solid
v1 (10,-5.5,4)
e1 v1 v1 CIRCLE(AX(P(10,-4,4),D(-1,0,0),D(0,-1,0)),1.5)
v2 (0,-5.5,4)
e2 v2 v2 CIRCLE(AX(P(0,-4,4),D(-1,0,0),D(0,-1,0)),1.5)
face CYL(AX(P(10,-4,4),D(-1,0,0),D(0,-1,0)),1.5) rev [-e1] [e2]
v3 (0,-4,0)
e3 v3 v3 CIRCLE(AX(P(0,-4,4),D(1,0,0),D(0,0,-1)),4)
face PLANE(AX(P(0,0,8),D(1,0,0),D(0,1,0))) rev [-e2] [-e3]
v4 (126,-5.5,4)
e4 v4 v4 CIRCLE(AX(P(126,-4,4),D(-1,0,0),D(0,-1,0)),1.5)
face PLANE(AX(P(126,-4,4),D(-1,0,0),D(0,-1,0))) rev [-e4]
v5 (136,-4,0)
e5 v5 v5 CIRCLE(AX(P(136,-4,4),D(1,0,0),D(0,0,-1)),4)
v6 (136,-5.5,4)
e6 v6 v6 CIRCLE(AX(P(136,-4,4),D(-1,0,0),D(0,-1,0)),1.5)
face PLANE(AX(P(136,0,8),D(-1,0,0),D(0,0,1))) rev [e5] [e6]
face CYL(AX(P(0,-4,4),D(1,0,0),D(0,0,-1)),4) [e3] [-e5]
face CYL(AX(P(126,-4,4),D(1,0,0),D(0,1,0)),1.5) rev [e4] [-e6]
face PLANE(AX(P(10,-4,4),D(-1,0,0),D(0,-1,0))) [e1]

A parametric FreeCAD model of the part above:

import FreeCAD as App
import Part
import Sketcher

doc = App.newDocument("Part")
body = doc.addObject("PartDesign::Body", "Body")

# Sketch on XY plane
sketch1 = body.newObject("Sketcher::SketchObject", "Sketch")
sketch1.AttachmentSupport = (doc.getObject("XY_Plane"), [""])
sketch1.MapMode = "FlatFace"
sketch1.addGeometry([
    Part.LineSegment(App.Vector(0, 0, 0), App.Vector(0, -8, 0)),
    Part.LineSegment(App.Vector(0, -8, 0), App.Vector(136, -8, 0)),
    Part.LineSegment(App.Vector(136, -8, 0), App.Vector(136, 0, 0)),
    Part.LineSegment(App.Vector(136, 0, 0), App.Vector(0, 0, 0)),
], False)
sketch1.addConstraint([
    Sketcher.Constraint("Coincident", 0, 2, 1, 1),
    Sketcher.Constraint("Coincident", 1, 2, 2, 1),
    Sketcher.Constraint("Coincident", 2, 2, 3, 1),
    Sketcher.Constraint("Coincident", 3, 2, 0, 1),
    Sketcher.Constraint("Vertical", 0),
    Sketcher.Constraint("Horizontal", 1),
    Sketcher.Constraint("Vertical", 2),
    Sketcher.Constraint("Horizontal", 3),
    Sketcher.Constraint("Coincident", 3, 2, -1, 1),
    Sketcher.Constraint("DistanceX", 1, 1, 1, 2, 136.0),
    Sketcher.Constraint("DistanceY", 0, 2, 0, 1, 8.0),
])
pad1 = body.newObject("PartDesign::Pad", "Pad")
pad1.Profile = sketch1
pad1.Length = 8

# Sketch on YZ plane
sketch2 = body.newObject("Sketcher::SketchObject", "Sketch001")
sketch2.AttachmentSupport = (doc.getObject("YZ_Plane"), [""])
sketch2.MapMode = "FlatFace"
sketch2.addGeometry(Part.Circle(App.Vector(-4, 4, 0), App.Vector(0, 0, 1), 1.5), False)
sketch2.addConstraint([
    Sketcher.Constraint("Diameter", 0, 3.0),
    Sketcher.Constraint("DistanceX", 0, 3, -1, 1, 4.0),
    Sketcher.Constraint("DistanceY", -1, 1, 0, 3, 4.0),
])
pocket1 = body.newObject("PartDesign::Pocket", "Pocket")
pocket1.Profile = sketch2
pocket1.Length = 10
pocket1.Reversed = True

# Sketch on YZ plane
sketch3 = body.newObject("Sketcher::SketchObject", "Sketch002")
sketch3.AttachmentSupport = (doc.getObject("YZ_Plane"), [""])
sketch3.MapMode = "FlatFace"
sketch3.AttachmentOffset = App.Placement(App.Vector(0, 0, 136), App.Rotation())
sketch3.addGeometry(Part.Circle(App.Vector(-4, 4, 0), App.Vector(0, 0, 1), 1.5), False)
sketch3.addConstraint([
    Sketcher.Constraint("Diameter", 0, 3.0),
    Sketcher.Constraint("DistanceX", 0, 3, -1, 1, 4.0),
    Sketcher.Constraint("DistanceY", -1, 1, 0, 3, 4.0),
])
pocket2 = body.newObject("PartDesign::Pocket", "Pocket001")
pocket2.Profile = sketch3
pocket2.Length = 10

# Sketch on YZ plane
sketch4 = body.newObject("Sketcher::SketchObject", "Sketch003")
sketch4.AttachmentSupport = (doc.getObject("YZ_Plane"), [""])
sketch4.MapMode = "FlatFace"
sketch4.AttachmentOffset = App.Placement(App.Vector(0, 0, 136), App.Rotation())
sketch4.addGeometry([
    Part.Circle(App.Vector(-4, 4, 0), App.Vector(0, 0, 1), 6),
    Part.Circle(App.Vector(-4, 4, 0), App.Vector(0, 0, 1), 4),
], False)
sketch4.addConstraint([
    Sketcher.Constraint("Coincident", 1, 3, 0, 3),
    Sketcher.Constraint("Diameter", 0, 12.0),
    Sketcher.Constraint("Diameter", 1, 8.0),
    Sketcher.Constraint("DistanceX", 0, 3, -1, 1, 4.0),
    Sketcher.Constraint("DistanceY", -1, 1, 0, 3, 4.0),
])
pocket3 = body.newObject("PartDesign::Pocket", "Pocket002")
pocket3.Profile = sketch4
pocket3.Type = "ThroughAll"

doc.recompute()
